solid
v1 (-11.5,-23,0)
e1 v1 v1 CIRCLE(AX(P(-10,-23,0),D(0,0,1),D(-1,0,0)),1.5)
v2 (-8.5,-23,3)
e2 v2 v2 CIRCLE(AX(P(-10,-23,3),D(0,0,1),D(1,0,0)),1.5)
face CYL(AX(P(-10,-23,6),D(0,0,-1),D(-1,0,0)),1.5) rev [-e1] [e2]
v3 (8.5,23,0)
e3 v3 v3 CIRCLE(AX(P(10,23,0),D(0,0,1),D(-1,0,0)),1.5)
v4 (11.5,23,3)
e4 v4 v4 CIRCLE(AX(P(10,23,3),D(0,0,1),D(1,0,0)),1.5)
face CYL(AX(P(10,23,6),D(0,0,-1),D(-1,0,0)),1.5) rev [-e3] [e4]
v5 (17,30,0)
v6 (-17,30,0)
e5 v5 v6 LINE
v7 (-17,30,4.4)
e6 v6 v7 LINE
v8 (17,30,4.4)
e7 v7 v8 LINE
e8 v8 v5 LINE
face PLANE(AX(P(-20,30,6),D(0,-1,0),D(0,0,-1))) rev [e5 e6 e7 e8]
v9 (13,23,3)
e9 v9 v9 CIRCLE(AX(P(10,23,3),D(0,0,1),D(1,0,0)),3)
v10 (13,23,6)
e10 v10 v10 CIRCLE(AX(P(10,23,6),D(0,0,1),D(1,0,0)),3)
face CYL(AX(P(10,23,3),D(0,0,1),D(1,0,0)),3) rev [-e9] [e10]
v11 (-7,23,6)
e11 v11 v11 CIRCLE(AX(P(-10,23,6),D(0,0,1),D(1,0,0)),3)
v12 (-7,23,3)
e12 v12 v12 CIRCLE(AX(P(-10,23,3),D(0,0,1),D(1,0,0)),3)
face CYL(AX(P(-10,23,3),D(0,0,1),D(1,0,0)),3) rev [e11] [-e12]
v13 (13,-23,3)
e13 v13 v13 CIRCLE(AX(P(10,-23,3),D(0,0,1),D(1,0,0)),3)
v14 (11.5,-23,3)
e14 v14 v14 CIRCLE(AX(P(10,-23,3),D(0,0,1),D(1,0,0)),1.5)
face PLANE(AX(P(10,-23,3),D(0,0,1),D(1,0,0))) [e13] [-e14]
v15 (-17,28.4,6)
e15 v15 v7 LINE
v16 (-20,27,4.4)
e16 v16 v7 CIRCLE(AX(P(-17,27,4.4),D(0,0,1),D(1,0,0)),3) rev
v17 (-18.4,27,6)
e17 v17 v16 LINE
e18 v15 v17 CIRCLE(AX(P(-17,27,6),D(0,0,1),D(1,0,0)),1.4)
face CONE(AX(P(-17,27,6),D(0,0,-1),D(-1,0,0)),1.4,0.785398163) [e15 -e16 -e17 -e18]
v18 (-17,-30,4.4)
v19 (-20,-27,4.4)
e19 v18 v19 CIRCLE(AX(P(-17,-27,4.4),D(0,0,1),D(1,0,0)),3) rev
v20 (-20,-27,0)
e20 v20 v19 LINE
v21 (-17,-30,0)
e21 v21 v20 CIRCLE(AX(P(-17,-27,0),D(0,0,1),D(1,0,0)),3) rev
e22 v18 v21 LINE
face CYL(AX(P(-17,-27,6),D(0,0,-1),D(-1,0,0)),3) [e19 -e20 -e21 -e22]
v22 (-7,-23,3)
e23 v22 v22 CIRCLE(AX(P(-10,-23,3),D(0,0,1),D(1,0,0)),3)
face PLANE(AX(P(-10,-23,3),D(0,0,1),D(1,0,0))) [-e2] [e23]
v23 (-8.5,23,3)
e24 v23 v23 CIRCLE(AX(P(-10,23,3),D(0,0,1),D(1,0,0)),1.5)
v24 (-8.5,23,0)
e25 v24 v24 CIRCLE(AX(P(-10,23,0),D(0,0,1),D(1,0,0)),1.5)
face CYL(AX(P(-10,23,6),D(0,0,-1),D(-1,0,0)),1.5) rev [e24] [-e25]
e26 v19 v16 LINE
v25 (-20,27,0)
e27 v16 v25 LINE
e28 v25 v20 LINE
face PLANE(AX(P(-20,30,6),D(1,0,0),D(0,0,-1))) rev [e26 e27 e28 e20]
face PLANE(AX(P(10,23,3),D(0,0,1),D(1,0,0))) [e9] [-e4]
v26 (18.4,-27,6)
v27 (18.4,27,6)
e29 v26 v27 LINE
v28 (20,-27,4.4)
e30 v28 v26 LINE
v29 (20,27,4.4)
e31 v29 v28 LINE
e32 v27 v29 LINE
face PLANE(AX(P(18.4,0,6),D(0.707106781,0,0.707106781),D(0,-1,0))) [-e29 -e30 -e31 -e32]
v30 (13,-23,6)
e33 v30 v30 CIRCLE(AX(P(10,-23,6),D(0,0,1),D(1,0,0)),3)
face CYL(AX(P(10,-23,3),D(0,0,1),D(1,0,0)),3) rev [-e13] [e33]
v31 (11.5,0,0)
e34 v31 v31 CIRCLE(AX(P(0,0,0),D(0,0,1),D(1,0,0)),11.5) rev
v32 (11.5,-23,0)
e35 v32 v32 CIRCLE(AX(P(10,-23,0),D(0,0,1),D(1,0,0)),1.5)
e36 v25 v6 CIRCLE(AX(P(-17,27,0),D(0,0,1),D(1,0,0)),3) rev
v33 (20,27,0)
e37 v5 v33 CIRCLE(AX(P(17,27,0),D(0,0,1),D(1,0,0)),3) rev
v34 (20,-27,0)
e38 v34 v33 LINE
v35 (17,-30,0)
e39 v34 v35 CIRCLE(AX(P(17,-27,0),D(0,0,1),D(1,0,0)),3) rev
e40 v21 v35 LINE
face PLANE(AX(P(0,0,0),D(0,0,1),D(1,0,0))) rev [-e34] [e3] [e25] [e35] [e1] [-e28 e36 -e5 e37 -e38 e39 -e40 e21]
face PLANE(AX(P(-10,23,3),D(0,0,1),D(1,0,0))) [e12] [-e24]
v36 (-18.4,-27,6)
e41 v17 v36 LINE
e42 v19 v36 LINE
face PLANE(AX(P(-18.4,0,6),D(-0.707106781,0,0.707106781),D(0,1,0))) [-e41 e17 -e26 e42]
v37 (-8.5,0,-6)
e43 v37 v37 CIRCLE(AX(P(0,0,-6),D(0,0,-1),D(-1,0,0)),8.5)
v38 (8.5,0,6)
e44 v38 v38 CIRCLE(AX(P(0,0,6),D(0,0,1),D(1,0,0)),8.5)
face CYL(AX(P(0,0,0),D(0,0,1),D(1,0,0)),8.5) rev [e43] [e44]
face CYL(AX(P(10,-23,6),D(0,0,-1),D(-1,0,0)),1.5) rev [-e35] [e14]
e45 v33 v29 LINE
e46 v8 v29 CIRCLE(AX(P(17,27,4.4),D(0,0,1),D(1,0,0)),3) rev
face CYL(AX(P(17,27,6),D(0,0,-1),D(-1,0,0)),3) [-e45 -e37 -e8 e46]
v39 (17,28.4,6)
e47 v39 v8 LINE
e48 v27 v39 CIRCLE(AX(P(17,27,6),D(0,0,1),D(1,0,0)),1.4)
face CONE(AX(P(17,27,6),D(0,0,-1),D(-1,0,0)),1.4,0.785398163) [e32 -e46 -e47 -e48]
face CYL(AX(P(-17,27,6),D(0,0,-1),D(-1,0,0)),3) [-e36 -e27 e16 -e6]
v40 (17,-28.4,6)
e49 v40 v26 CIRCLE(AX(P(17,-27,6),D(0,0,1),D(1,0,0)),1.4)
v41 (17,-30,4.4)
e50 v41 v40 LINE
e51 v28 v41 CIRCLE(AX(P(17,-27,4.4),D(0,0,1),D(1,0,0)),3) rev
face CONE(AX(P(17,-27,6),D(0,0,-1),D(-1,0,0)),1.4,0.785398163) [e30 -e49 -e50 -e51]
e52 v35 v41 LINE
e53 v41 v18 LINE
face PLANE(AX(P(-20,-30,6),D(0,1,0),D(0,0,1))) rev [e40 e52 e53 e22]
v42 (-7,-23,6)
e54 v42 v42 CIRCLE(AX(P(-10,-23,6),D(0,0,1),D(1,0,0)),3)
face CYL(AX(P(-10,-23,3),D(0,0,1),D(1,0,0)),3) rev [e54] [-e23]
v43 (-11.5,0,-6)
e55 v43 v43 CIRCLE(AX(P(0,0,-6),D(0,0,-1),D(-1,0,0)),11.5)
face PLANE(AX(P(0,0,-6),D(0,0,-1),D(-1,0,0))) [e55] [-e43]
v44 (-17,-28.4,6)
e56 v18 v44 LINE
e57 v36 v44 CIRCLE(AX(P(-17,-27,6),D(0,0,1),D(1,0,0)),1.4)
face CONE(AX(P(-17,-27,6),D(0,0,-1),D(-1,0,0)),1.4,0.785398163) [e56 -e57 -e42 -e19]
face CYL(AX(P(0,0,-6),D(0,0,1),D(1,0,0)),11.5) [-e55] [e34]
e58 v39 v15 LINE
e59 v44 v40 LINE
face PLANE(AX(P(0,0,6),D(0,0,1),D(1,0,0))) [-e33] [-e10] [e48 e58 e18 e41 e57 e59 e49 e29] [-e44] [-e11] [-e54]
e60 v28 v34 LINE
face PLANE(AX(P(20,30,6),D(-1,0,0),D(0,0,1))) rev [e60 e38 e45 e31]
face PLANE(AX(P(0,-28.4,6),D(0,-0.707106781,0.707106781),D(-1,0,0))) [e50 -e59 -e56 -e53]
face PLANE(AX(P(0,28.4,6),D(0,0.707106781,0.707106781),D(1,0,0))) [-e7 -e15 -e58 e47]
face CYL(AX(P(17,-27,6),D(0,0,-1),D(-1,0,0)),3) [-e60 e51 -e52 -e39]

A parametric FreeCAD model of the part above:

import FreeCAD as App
import Part
import Sketcher

V = App.Vector


def edges_at(feature, points):
    """Names of the edges that pass closest to the given points."""
    edges = feature.Shape.Edges
    near = lambda p: min(range(len(edges)), key=lambda i: edges[i].distToShape(Part.Vertex(*p))[0])
    return sorted({f"Edge{near(p) + 1}" for p in points})


def add_polygon(sketch, points):
    """Adds a closed chain of lines whose ends are joined by coincident constraints."""
    first, n = sketch.GeometryCount, len(points)
    for a, b in zip(points, points[1:] + points[:1]):
        sketch.addGeometry(Part.LineSegment(App.Vector(*a, 0), App.Vector(*b, 0)), False)
    for i in range(n):
        sketch.addConstraint(Sketcher.Constraint("Coincident", first + i, 2, first + (i + 1) % n, 1))

doc = App.newDocument("Part")
body = doc.addObject("PartDesign::Body", "Body")

# Sketch on XY plane
sketch1 = doc.addObject("Sketcher::SketchObject", "Sketch")
body.addObject(sketch1)
sketch1.AttachmentSupport = (doc.XY_Plane, [""])
sketch1.MapMode = "FlatFace"
add_polygon(sketch1, [(-20, 30), (-20, -30), (20, -30), (20, 30)])  # lines 0-3
sketch1.addGeometry(Part.Circle(V(-10, -23, 0), V(0, 0, 1), 1.5), False)  # 4
sketch1.addGeometry(Part.Circle(V(10, -23, 0), V(0, 0, 1), 1.5), False)  # 5
sketch1.addGeometry(Part.Circle(V(-10, 23, 0), V(0, 0, 1), 1.5), False)  # 6
sketch1.addGeometry(Part.Circle(V(10, 23, 0), V(0, 0, 1), 1.5), False)  # 7
sketch1.addConstraint([
    Sketcher.Constraint("Vertical", 0),
    Sketcher.Constraint("Horizontal", 1),
    Sketcher.Constraint("Vertical", 2),
    Sketcher.Constraint("Horizontal", 3),
    Sketcher.Constraint("Equal", 4, 5),
    Sketcher.Constraint("Equal", 5, 6),
    Sketcher.Constraint("Equal", 6, 7),
    Sketcher.Constraint("Symmetric", 5, 3, 6, 3, -1, 1),
    Sketcher.Constraint("Symmetric", 4, 3, 7, 3, -1, 1),
    Sketcher.Constraint("Symmetric", 0, 2, 2, 2, -1, 1),
    Sketcher.Constraint("Symmetric", 4, 3, 5, 3, -2),
    Sketcher.Constraint("Diameter", 4, 3.0),
    Sketcher.Constraint("DistanceX", 1, 1, 1, 2, 40.0),
    Sketcher.Constraint("DistanceY", 0, 2, 0, 1, 60.0),
    Sketcher.Constraint("DistanceX", 4, 3, -1, 1, 10.0),
    Sketcher.Constraint("DistanceY", 4, 3, -1, 1, 23.0),
])
pad1 = doc.addObject("PartDesign::Pad", "Pad")
body.addObject(pad1)
pad1.Profile = sketch1
pad1.Length = 6

# Sketch on XY plane
sketch2 = doc.addObject("Sketcher::SketchObject", "Sketch001")
body.addObject(sketch2)
sketch2.AttachmentSupport = (doc.XY_Plane, [""])
sketch2.MapMode = "FlatFace"
sketch2.AttachmentOffset = App.Placement(V(0, 0, 6), App.Rotation())
sketch2.addGeometry([
    Part.Circle(V(-10, 23, 0), V(0, 0, 1), 3),
    Part.Circle(V(10, 23, 0), V(0, 0, 1), 3),
    Part.Circle(V(10, -23, 0), V(0, 0, 1), 3),
    Part.Circle(V(-10, -23, 0), V(0, 0, 1), 3),
], False)
sketch2.addConstraint([
    Sketcher.Constraint("Equal", 0, 1),
    Sketcher.Constraint("Equal", 1, 2),
    Sketcher.Constraint("Equal", 2, 3),
    Sketcher.Constraint("Symmetric", 0, 3, 2, 3, -1, 1),
    Sketcher.Constraint("Symmetric", 1, 3, 3, 3, -1, 1),
    Sketcher.Constraint("Symmetric", 0, 3, 1, 3, -2),
    Sketcher.Constraint("Diameter", 0, 6.0),
    Sketcher.Constraint("DistanceX", 0, 3, -1, 1, 10.0),
    Sketcher.Constraint("DistanceY", -1, 1, 0, 3, 23.0),
])
pocket1 = doc.addObject("PartDesign::Pocket", "Pocket")
body.addObject(pocket1)
pocket1.Profile = sketch2
pocket1.Length = 3
doc.recompute()

fillet = doc.addObject("PartDesign::Fillet", "Fillet")
body.addObject(fillet)
fillet.Base = (pocket1, edges_at(pocket1, [
    (-20, 30, 3),
    (20, 30, 3),
    (20, -30, 3),
    (-20, -30, 3),
]))
fillet.Radius = 3
doc.recompute()

chamfer = doc.addObject("PartDesign::Chamfer", "Chamfer")
body.addObject(chamfer)
chamfer.Base = (fillet, edges_at(fillet, [
    (0, -30, 6),
    (-20, 0, 6),
    (20, 0, 6),
    (0, 30, 6),
    (19.121, 29.121, 6),
    (-19.121, 29.121, 6),
    (19.121, -29.121, 6),
    (-19.121, -29.121, 6),
]))
chamfer.Size = 1.6

# Sketch on XY plane
sketch3 = doc.addObject("Sketcher::SketchObject", "Sketch002")
body.addObject(sketch3)
sketch3.AttachmentSupport = (doc.XY_Plane, [""])
sketch3.MapMode = "FlatFace"
sketch3.AttachmentOffset = App.Placement(V(0, 0, 6), App.Rotation())
sketch3.addGeometry(Part.Circle(V(0, 0, 0), V(0, 0, 1), 8), False)
sketch3.addConstraint([
    Sketcher.Constraint("Coincident", 0, 3, -1, 1),
    Sketcher.Constraint("Diameter", 0, 17.0),
])
pocket2 = doc.addObject("PartDesign::Pocket", "Pocket001")
body.addObject(pocket2)
pocket2.Profile = sketch3
pocket2.Type = "ThroughAll"

# Sketch on XY plane
sketch4 = doc.addObject("Sketcher::SketchObject", "Sketch003")
body.addObject(sketch4)
sketch4.AttachmentSupport = (doc.XY_Plane, [""])
sketch4.MapMode = "FlatFace"
sketch4.addGeometry([
    Part.Circle(V(0, 0, 0), V(0, 0, 1), 12),
    Part.Circle(V(0, 0, 0), V(0, 0, 1), 8),
], False)
sketch4.addConstraint([
    Sketcher.Constraint("Coincident", 0, 3, -1, 1),
    Sketcher.Constraint("Coincident", 1, 3, -1, 1),
    Sketcher.Constraint("Diameter", 0, 23.0),
    Sketcher.Constraint("Diameter", 1, 17.0),
])
pad2 = doc.addObject("PartDesign::Pad", "Pad001")
body.addObject(pad2)
pad2.Profile = sketch4
pad2.Length = 6
pad2.Reversed = True

doc.recompute()
